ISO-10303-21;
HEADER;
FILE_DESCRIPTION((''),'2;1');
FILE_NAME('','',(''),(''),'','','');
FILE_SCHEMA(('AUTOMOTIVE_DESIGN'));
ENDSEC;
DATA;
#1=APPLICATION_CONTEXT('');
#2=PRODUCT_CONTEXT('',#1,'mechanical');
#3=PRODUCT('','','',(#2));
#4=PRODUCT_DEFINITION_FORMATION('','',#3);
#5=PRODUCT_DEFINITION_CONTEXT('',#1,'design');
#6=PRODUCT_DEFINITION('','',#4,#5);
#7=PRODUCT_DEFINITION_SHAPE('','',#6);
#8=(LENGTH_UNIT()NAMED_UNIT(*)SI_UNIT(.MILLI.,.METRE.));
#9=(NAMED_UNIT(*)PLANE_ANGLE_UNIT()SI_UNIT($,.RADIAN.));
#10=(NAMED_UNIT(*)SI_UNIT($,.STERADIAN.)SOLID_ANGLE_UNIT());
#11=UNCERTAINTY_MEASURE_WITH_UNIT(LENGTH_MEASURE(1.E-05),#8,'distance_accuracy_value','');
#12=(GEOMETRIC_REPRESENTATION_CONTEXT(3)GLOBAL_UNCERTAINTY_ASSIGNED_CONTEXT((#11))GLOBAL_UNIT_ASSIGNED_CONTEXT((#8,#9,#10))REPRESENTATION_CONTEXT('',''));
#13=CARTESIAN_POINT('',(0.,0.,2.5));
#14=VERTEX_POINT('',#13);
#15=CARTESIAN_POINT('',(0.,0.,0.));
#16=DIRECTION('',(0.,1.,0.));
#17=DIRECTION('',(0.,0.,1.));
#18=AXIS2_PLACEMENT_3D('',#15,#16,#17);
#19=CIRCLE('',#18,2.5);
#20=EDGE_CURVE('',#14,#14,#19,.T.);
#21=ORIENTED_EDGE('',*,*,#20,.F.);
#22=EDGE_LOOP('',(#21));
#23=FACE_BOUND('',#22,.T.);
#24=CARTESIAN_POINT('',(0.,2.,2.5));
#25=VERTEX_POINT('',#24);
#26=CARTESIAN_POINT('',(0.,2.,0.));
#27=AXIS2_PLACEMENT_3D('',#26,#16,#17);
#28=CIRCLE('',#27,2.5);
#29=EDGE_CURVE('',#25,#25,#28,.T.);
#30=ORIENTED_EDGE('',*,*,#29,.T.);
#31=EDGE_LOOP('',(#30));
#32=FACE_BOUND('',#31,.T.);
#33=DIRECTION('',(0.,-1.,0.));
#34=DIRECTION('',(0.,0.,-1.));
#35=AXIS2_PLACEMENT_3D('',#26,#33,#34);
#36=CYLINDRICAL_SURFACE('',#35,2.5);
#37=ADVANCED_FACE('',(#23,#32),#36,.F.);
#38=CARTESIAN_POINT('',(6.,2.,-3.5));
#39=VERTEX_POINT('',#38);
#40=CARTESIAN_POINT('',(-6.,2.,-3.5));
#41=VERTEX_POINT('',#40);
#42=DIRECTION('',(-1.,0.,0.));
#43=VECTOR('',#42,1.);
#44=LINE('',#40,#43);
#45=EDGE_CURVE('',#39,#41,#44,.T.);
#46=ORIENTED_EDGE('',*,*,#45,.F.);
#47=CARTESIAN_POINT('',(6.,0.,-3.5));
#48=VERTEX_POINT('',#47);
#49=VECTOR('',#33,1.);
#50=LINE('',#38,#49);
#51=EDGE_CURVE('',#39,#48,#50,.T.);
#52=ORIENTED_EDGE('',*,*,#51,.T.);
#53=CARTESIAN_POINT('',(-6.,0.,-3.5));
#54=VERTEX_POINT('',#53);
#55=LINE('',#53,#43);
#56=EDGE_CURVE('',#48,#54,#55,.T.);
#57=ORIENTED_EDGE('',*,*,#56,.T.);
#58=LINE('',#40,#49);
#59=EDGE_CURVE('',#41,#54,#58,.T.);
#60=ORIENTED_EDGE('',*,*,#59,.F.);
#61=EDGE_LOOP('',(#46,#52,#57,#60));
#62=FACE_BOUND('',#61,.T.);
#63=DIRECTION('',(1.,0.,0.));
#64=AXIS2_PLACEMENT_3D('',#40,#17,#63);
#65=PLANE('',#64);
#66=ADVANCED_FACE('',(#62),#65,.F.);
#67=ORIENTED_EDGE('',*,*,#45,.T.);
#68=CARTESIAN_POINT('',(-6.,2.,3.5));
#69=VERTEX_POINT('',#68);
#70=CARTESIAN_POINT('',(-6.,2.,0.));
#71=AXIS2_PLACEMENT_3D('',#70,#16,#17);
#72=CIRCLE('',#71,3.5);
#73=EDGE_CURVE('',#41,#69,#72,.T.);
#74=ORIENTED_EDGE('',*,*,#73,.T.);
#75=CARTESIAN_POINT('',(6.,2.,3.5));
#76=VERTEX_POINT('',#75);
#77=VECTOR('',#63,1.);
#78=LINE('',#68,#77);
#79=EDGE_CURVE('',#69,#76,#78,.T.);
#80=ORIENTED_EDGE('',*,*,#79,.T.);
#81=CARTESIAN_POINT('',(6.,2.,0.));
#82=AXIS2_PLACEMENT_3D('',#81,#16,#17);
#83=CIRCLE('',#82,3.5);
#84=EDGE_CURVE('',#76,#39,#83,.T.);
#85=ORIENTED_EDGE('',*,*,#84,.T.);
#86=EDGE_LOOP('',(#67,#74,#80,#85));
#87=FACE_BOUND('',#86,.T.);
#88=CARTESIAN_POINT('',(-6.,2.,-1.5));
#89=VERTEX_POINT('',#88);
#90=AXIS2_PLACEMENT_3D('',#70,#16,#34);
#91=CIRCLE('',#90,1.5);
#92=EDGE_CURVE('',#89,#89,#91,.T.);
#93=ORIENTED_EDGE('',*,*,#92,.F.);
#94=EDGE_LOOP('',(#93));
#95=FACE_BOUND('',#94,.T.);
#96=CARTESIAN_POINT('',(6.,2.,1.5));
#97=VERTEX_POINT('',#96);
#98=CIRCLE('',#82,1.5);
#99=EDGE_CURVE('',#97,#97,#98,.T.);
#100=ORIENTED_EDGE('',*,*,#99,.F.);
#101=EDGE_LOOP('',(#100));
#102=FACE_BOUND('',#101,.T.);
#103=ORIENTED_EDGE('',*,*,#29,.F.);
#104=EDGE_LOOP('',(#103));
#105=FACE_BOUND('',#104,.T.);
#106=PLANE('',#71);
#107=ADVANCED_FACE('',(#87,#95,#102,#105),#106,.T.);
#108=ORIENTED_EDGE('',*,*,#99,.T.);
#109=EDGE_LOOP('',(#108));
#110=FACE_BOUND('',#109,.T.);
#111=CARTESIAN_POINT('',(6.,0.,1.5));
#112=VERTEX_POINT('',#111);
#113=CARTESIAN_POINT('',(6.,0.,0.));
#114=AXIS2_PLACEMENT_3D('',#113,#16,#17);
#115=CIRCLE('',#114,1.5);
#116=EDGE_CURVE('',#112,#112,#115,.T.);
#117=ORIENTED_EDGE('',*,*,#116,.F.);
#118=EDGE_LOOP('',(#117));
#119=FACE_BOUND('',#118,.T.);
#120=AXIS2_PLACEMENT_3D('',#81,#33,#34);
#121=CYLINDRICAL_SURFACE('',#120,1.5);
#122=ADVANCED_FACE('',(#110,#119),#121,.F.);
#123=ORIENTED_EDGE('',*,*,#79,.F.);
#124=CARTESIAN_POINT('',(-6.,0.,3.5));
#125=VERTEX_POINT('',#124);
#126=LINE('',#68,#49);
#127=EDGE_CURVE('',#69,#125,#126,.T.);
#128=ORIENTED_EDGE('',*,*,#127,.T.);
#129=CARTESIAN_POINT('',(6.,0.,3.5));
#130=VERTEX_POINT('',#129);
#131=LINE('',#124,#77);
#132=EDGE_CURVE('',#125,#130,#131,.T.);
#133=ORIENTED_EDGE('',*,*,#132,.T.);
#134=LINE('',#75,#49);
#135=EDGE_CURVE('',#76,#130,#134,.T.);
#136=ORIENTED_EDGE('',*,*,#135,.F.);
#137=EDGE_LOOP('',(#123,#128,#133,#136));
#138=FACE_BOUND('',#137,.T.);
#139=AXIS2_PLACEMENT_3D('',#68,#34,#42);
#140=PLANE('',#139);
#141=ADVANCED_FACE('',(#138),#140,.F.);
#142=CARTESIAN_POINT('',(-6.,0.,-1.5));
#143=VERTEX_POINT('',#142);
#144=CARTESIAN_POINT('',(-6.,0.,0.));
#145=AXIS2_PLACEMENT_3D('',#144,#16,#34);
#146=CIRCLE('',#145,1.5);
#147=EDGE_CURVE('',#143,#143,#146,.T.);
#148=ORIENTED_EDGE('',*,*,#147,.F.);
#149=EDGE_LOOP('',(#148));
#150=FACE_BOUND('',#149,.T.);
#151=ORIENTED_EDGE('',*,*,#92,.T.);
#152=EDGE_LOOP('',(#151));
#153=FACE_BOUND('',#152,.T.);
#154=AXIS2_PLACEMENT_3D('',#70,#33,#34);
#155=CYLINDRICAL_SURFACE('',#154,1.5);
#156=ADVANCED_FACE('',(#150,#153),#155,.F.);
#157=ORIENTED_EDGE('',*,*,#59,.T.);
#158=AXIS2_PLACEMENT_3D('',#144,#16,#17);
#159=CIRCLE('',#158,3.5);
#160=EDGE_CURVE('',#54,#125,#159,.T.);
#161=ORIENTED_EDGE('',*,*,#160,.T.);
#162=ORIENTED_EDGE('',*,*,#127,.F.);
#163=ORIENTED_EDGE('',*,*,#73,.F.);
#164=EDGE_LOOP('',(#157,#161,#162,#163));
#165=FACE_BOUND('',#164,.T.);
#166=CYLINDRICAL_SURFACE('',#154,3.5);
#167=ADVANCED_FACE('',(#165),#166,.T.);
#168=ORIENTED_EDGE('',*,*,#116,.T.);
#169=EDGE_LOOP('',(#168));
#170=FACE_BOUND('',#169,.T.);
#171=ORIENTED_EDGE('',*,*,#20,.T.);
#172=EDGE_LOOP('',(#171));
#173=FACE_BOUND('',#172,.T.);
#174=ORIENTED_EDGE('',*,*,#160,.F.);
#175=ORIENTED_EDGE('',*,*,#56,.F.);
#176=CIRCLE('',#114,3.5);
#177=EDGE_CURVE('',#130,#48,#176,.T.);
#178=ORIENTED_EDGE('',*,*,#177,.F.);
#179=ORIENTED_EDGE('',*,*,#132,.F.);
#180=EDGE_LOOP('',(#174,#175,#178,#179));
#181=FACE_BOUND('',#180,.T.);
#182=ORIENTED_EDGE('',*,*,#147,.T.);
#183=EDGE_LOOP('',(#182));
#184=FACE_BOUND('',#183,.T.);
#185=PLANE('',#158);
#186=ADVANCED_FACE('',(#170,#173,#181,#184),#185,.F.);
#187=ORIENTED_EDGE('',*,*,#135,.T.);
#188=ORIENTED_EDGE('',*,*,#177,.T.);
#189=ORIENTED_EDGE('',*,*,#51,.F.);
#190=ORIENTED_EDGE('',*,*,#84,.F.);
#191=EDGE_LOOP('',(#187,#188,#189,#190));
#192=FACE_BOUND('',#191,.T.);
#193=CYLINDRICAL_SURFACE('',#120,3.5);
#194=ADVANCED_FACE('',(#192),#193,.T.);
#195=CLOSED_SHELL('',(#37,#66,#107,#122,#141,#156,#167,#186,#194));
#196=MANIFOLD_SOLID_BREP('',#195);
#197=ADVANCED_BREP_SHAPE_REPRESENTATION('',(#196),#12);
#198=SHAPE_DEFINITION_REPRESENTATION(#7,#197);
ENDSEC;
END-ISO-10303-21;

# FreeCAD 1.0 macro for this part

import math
import FreeCAD as App
import Part
import Sketcher
Q = App.Units.Quantity

doc = App.newDocument("Part")
params = doc.addObject("Spreadsheet::Sheet", "Params")
for row, (alias, value) in enumerate([
    ("sketch1_diameter", "3 mm"),
    ("sketch1_diameter2", "5 mm"),
    ("sketch1_radius", "3.5 mm"),
    ("sketch1_width", "12 mm"),
    ("pad1_length", "2 mm"),
], start=1):
    params.set(f"A{row}", alias)
    params.set(f"B{row}", "=" + value)
    params.setAlias(f"B{row}", alias)

body = doc.addObject("PartDesign::Body", "Body")

# Sketch on XZ plane
sketch1 = doc.addObject("Sketcher::SketchObject", "Sketch")
body.addObject(sketch1)
sketch1.AttachmentSupport = (doc.XZ_Plane, [""])
sketch1.MapMode = "FlatFace"
sketch1.addGeometry([
    Part.LineSegment(App.Vector(6, -3.5, 0), App.Vector(-6, -3.5, 0)),  # 0
    Part.ArcOfCircle(Part.Circle(App.Vector(-6, 0, 0), App.Vector(0, 0, 1), 3.5), math.radians(90), math.radians(270)),  # 1
    Part.LineSegment(App.Vector(-6, 3.5, 0), App.Vector(6, 3.5, 0)),  # 2
    Part.ArcOfCircle(Part.Circle(App.Vector(6, 0, 0), App.Vector(0, 0, 1), 3.5), math.radians(-90), math.radians(90)),  # 3
    Part.Circle(App.Vector(6, 0, 0), App.Vector(0, 0, 1), 1.5),  # 4
    Part.Circle(App.Vector(0, 0, 0), App.Vector(0, 0, 1), 2.5),  # 5
    Part.Circle(App.Vector(-6, 0, 0), App.Vector(0, 0, 1), 1.5),  # 6
], False)
sketch1.addConstraint([
    Sketcher.Constraint("Tangent", 0, 2, 1, 2),
    Sketcher.Constraint("Tangent", 1, 1, 2, 1),
    Sketcher.Constraint("Tangent", 2, 2, 3, 2),
    Sketcher.Constraint("Tangent", 3, 1, 0, 1),
    Sketcher.Constraint("Horizontal", 0),
    Sketcher.Constraint("Horizontal", 2),
    Sketcher.Constraint("Coincident", 5, 3, -1, 1),
    Sketcher.Constraint("Coincident", 4, 3, 3, 3),
    Sketcher.Constraint("Coincident", 6, 3, 1, 3),
    Sketcher.Constraint("Equal", 4, 6),
    Sketcher.Constraint("Symmetric", 1, 3, 3, 3, -1, 1),
    Sketcher.Constraint("Diameter", 4, Q("3 mm")),
    Sketcher.Constraint("Diameter", 5, Q("5 mm")),
    Sketcher.Constraint("Radius", 1, Q("3.5 mm")),
    Sketcher.Constraint("DistanceX", 0, 2, 0, 1, Q("12 mm")),
])
sketch1.setExpression("Constraints[11]", "Params.sketch1_diameter")
sketch1.setExpression("Constraints[12]", "Params.sketch1_diameter2")
sketch1.setExpression("Constraints[13]", "Params.sketch1_radius")
sketch1.setExpression("Constraints[14]", "Params.sketch1_width")
pad1 = doc.addObject("PartDesign::Pad", "Pad")
body.addObject(pad1)
pad1.Profile = sketch1
pad1.setExpression("Length", "Params.pad1_length")
pad1.Reversed = True

doc.recompute()
